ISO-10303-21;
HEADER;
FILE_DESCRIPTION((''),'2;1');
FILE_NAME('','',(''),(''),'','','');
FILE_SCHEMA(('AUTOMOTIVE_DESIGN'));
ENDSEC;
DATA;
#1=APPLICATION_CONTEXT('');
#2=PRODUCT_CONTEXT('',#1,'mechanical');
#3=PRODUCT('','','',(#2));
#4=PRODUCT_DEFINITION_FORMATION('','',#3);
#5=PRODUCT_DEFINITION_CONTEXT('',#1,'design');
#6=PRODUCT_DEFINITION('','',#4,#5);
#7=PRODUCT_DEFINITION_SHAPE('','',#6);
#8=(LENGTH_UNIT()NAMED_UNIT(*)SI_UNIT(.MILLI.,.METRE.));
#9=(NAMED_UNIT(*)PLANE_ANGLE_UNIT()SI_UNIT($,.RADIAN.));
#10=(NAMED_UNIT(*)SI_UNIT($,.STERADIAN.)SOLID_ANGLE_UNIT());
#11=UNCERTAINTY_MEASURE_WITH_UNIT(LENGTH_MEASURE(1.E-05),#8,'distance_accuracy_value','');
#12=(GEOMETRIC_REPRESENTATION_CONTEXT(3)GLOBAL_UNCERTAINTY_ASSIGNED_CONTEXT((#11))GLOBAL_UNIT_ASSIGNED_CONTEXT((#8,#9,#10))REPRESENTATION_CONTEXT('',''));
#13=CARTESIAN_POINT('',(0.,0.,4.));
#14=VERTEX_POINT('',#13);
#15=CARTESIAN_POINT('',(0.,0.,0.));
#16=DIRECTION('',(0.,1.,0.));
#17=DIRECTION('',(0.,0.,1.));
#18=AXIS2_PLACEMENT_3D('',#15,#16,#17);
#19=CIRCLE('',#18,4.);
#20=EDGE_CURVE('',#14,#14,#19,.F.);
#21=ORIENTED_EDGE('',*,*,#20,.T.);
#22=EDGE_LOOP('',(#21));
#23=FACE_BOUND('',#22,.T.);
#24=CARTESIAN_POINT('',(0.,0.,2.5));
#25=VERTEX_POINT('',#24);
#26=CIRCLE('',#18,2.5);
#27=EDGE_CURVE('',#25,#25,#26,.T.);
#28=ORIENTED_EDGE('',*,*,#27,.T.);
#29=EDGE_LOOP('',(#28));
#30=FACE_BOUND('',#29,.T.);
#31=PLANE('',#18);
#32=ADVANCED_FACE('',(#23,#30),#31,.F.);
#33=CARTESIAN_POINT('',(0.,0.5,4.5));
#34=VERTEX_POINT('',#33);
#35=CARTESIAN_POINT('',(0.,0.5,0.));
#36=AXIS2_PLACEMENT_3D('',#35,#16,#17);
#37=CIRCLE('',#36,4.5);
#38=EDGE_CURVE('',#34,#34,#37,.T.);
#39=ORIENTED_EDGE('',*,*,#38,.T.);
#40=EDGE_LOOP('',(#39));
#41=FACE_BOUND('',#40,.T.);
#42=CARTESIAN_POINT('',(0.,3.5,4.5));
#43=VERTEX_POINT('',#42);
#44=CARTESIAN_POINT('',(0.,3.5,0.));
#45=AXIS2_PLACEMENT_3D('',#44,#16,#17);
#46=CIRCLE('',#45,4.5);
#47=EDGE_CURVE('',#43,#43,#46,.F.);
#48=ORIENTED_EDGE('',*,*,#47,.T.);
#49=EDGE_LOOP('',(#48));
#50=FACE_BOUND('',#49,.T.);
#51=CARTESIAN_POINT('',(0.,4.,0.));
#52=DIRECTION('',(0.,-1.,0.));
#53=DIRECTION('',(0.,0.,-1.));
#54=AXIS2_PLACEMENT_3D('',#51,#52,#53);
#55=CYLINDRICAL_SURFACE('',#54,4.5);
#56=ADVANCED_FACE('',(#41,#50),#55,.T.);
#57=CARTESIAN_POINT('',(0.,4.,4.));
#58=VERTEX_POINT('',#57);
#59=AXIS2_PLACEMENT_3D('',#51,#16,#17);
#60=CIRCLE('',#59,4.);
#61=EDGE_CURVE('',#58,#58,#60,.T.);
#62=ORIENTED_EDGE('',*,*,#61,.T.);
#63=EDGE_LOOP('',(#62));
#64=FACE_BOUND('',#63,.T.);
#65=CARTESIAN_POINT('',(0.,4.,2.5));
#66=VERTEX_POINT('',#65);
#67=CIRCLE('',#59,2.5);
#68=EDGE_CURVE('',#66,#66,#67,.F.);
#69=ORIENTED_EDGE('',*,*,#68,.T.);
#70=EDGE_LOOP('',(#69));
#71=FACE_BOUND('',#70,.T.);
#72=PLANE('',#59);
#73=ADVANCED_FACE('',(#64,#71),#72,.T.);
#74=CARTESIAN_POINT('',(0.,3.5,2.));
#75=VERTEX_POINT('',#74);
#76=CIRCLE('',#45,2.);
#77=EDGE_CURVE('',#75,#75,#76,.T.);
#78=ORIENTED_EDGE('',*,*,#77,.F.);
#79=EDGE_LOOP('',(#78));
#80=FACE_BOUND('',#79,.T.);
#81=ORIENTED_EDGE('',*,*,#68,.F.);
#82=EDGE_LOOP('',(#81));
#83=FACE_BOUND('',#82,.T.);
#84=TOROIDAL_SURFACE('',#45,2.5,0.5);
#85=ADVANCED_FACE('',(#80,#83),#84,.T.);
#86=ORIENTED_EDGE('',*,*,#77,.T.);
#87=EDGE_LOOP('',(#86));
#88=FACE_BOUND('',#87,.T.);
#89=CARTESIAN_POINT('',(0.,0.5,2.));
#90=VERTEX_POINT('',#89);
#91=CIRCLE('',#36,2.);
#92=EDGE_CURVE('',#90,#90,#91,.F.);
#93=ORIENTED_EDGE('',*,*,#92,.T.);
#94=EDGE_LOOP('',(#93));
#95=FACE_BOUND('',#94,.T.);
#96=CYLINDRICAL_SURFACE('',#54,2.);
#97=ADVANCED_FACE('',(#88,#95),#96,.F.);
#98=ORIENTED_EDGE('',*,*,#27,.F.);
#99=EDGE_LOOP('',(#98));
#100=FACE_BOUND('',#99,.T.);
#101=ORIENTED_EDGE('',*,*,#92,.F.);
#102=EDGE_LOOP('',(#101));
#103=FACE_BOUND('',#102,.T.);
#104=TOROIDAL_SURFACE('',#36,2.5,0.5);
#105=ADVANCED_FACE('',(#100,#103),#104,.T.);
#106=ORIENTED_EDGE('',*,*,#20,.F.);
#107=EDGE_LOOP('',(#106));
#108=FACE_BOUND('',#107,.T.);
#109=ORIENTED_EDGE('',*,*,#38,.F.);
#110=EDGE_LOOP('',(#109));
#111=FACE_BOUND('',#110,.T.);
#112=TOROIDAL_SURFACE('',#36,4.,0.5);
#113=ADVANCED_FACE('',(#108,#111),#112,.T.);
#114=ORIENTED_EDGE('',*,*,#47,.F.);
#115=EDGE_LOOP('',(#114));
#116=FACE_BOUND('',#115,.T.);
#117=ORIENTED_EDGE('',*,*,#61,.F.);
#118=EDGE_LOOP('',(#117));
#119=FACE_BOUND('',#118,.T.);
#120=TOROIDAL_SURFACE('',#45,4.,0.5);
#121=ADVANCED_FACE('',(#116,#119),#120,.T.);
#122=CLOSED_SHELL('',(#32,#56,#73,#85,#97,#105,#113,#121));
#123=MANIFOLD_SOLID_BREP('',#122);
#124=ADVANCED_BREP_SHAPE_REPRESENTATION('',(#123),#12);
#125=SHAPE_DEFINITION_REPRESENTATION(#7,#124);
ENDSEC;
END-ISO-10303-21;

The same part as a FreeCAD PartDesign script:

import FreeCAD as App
import Part
import Sketcher
from FreeCAD import Vector


def edges_at(feature, points):
    """Names of the edges that pass closest to the given points."""
    edges = feature.Shape.Edges
    near = lambda p: min(range(len(edges)), key=lambda i: edges[i].distToShape(Part.Vertex(*p))[0])
    return sorted({f"Edge{near(p) + 1}" for p in points})

doc = App.newDocument("Part")
params = doc.addObject("Spreadsheet::Sheet", "Params")
for row, (alias, value) in enumerate([
    ("sketch1_diameter", "9 mm"),
    ("sketch1_diameter2", "4 mm"),
    ("pad1_length", "4 mm"),
    ("fillet_radius", "0.5 mm"),
], start=1):
    params.set(f"A{row}", alias)
    params.set(f"B{row}", "=" + value)
    params.setAlias(f"B{row}", alias)

body = doc.addObject("PartDesign::Body", "Body")

# Sketch on XZ plane
sketch1 = body.newObject("Sketcher::SketchObject", "Sketch")
sketch1.AttachmentSupport = (doc.getObject("XZ_Plane"), [""])
sketch1.MapMode = "FlatFace"
sketch1.addGeometry([
    Part.Circle(Vector(0, 0, 0), Vector(0, 0, 1), 4.5),
    Part.Circle(Vector(0, 0, 0), Vector(0, 0, 1), 2),
], False)
sketch1.addConstraint([
    Sketcher.Constraint("Coincident", 0, 3, -1, 1),
    Sketcher.Constraint("Coincident", 1, 3, -1, 1),
    Sketcher.Constraint("Diameter", 0, 9.0),
    Sketcher.Constraint("Diameter", 1, 4.0),
])
sketch1.setExpression("Constraints[2]", "Params.sketch1_diameter")
sketch1.setExpression("Constraints[3]", "Params.sketch1_diameter2")
pad1 = body.newObject("PartDesign::Pad", "Pad")
pad1.Profile = sketch1
pad1.setExpression("Length", "Params.pad1_length")
pad1.Reversed = True
doc.recompute()

fillet = body.newObject("PartDesign::Fillet", "Fillet")
fillet.Base = (pad1, edges_at(pad1, [
    (0, 0, -4.5),
    (0, 4, -4.5),
    (0, 0, -2),
    (0, 4, -2),
]))
fillet.setExpression("Radius", "Params.fillet_radius")

doc.recompute()
